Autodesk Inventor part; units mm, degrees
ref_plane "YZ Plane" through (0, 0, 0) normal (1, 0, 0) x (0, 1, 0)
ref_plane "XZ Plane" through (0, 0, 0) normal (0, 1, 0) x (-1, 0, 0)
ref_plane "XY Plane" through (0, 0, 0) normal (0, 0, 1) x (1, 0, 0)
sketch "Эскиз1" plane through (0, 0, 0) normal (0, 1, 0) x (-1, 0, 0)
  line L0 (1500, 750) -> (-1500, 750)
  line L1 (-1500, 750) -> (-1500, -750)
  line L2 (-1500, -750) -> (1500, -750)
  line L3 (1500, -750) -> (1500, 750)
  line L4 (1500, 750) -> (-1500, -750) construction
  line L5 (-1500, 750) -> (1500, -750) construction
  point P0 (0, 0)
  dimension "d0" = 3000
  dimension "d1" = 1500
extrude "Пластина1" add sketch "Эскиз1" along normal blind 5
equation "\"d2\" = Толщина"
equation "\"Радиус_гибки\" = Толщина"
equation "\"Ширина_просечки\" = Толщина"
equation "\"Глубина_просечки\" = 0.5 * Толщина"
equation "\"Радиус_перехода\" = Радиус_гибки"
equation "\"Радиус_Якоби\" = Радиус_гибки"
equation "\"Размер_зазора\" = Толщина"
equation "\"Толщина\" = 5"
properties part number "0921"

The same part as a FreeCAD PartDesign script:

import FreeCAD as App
import Part
import Sketcher

V = App.Vector
Q = App.Units.Quantity

doc = App.newDocument("Part")
body = doc.addObject("PartDesign::Body", "Body")

# Sketch on XZ plane
sketch1 = doc.addObject("Sketcher::SketchObject", "Sketch")
body.addObject(sketch1)
sketch1.AttachmentSupport = (doc.XZ_Plane, [""])
sketch1.MapMode = "FlatFace"
sketch1.addGeometry(Part.LineSegment(V(-1500, -750, 0), V(-1500, 750, 0)), False)
sketch1.addGeometry(Part.LineSegment(V(-1500, 750, 0), V(1500, 750, 0)), False)
sketch1.addGeometry(Part.LineSegment(V(1500, 750, 0), V(1500, -750, 0)), False)
sketch1.addGeometry(Part.LineSegment(V(1500, -750, 0), V(-1500, -750, 0)), False)
sketch1.addConstraint(Sketcher.Constraint("Coincident", 0, 2, 1, 1))
sketch1.addConstraint(Sketcher.Constraint("Coincident", 1, 2, 2, 1))
sketch1.addConstraint(Sketcher.Constraint("Coincident", 2, 2, 3, 1))
sketch1.addConstraint(Sketcher.Constraint("Coincident", 3, 2, 0, 1))
sketch1.addConstraint(Sketcher.Constraint("Vertical", 0))
sketch1.addConstraint(Sketcher.Constraint("Horizontal", 1))
sketch1.addConstraint(Sketcher.Constraint("Vertical", 2))
sketch1.addConstraint(Sketcher.Constraint("Horizontal", 3))
sketch1.addConstraint(Sketcher.Constraint("Symmetric", 0, 2, 2, 2, -1, 1))
sketch1.addConstraint(Sketcher.Constraint("DistanceX", 1, 1, 1, 2, Q("3000 mm")))
sketch1.addConstraint(Sketcher.Constraint("DistanceY", 0, 1, 0, 2, Q("1500 mm")))
pad1 = doc.addObject("PartDesign::Pad", "Pad")
body.addObject(pad1)
pad1.Profile = sketch1
pad1.Length = 5
pad1.Reversed = True

doc.recompute()
